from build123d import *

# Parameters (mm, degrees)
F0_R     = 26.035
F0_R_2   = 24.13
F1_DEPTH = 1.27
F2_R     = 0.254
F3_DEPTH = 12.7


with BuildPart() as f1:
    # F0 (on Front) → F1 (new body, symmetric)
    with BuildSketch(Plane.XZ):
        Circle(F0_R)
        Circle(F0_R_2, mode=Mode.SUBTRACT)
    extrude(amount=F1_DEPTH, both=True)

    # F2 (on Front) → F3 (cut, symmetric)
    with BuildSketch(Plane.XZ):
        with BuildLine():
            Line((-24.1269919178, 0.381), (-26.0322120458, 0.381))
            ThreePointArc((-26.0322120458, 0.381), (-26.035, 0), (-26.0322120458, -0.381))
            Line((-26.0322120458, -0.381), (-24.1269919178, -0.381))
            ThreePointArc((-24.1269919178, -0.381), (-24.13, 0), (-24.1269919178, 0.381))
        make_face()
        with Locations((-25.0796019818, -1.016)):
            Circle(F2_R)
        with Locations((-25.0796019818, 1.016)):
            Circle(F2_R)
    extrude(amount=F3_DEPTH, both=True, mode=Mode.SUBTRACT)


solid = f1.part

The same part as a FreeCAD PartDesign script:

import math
import FreeCAD as App
import Part
import Sketcher

V = App.Vector
Q = App.Units.Quantity

doc = App.newDocument("Part")
body = doc.addObject("PartDesign::Body", "Body")

sketch1 = body.newObject("Sketcher::SketchObject", "Sketch")
sketch1.AttachmentSupport = (doc.getObject("XZ_Plane"), [""])
sketch1.MapMode = "FlatFace"
sketch1.addGeometry([
    Part.Circle(V(0, 0, 0), V(0, 0, 1), 26.035),
    Part.Circle(V(0, 0, 0), V(0, 0, 1), 24.13),
], False)
sketch1.addConstraint([
    Sketcher.Constraint("Coincident", 0, 3, -1, 1),
    Sketcher.Constraint("Coincident", 1, 3, -1, 1),
    Sketcher.Constraint("Diameter", 1, Q("1.9 in")),
    Sketcher.Constraint("Diameter", 0, Q("2.05 in")),
])
pad1 = body.newObject("PartDesign::Pad", "Pad")
pad1.Profile = sketch1
pad1.Length = Q("0.1 in")
pad1.Midplane = True

sketch2 = body.newObject("Sketcher::SketchObject", "Sketch001")
sketch2.AttachmentSupport = (doc.getObject("XZ_Plane"), [""])
sketch2.MapMode = "FlatFace"
sketch2.addGeometry([
    Part.LineSegment(V(-24.126992, 0.381, 0), V(-26.032212, 0.381, 0)),
    Part.ArcOfCircle(Part.Circle(V(0, 0, 0), V(0, 0, 1), 26.035), math.radians(179.161495), math.radians(180.838505)),
    Part.LineSegment(V(-26.032212, -0.381, 0), V(-24.126992, -0.381, 0)),
    Part.ArcOfCircle(Part.Circle(V(0, 0, 0), V(0, 0, 1), 24.13), math.radians(179.095292), math.radians(180.904708)),
    Part.Circle(V(-25.079602, -1.016, 0), V(0, 0, 1), 0.254),
    Part.Circle(V(-25.079602, 1.016, 0), V(0, 0, 1), 0.254),
], False)
sketch2.addConstraint([
    Sketcher.Constraint("Coincident", 0, 2, 1, 1),
    Sketcher.Constraint("Coincident", 1, 2, 2, 1),
    Sketcher.Constraint("Coincident", 2, 2, 3, 2),
    Sketcher.Constraint("Coincident", 3, 1, 0, 1),
    Sketcher.Constraint("Horizontal", 0),
    Sketcher.Constraint("Horizontal", 2),
    Sketcher.Constraint("Coincident", 1, 3, -1, 1),
    Sketcher.Constraint("Coincident", 3, 3, -1, 1),
    Sketcher.Constraint("Equal", 4, 5),
    Sketcher.Constraint("Symmetric", 4, 3, 5, 3, -1),
    Sketcher.Constraint("Vertical", 0, 2, 1, 2),
    Sketcher.Constraint("Diameter", 4, Q("0.02 in")),
    Sketcher.Constraint("Radius", 3, Q("0.95 in")),
    Sketcher.Constraint("Radius", 1, Q("1.025 in")),
    Sketcher.Constraint("DistanceY", 4, 3, -1, 1, Q("0.04 in")),
    Sketcher.Constraint("DistanceY", 1, 2, 0, 2, Q("0.03 in")),
    Sketcher.Constraint("DistanceX", 4, 3, -1, 1, Q("25.079602 mm")),
])
pocket1 = body.newObject("PartDesign::Pocket", "Pocket")
pocket1.Profile = sketch2
pocket1.Length = Q("1 in")
pocket1.Midplane = True

doc.recompute()
